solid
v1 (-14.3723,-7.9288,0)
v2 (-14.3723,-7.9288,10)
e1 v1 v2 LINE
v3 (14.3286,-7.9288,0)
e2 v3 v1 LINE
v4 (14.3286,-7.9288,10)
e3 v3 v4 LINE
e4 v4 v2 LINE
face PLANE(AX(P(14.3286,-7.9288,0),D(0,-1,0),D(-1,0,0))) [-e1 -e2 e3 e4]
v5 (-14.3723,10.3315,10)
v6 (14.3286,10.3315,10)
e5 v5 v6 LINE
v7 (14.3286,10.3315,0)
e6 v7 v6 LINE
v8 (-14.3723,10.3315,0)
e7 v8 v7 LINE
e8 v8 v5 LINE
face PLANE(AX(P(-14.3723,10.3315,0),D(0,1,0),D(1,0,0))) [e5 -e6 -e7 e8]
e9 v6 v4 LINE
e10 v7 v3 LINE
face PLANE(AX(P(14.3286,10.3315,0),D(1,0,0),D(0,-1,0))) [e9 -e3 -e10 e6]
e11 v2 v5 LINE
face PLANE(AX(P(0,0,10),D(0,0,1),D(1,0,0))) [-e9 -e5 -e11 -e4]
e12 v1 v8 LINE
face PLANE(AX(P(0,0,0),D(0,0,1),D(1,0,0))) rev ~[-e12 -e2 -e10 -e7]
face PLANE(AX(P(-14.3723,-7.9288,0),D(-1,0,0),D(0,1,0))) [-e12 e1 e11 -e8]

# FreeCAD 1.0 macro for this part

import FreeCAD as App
import Part
import Sketcher


def add_polygon(sketch, points):
    """Adds a closed chain of lines whose ends are joined by coincident constraints."""
    first, n = sketch.GeometryCount, len(points)
    for a, b in zip(points, points[1:] + points[:1]):
        sketch.addGeometry(Part.LineSegment(App.Vector(*a, 0), App.Vector(*b, 0)), False)
    for i in range(n):
        sketch.addConstraint(Sketcher.Constraint("Coincident", first + i, 2, first + (i + 1) % n, 1))

doc = App.newDocument("Part")
body = doc.addObject("PartDesign::Body", "Body")

# Sketch on XY plane
sketch1 = doc.addObject("Sketcher::SketchObject", "Sketch")
body.addObject(sketch1)
sketch1.AttachmentSupport = (doc.XY_Plane, [""])
sketch1.MapMode = "FlatFace"
add_polygon(sketch1, [(14.3286, 10.3315), (-14.3723, 10.3315), (-14.3723, -7.9288), (14.3286, -7.9288)])  # lines 0-3
sketch1.addConstraint(Sketcher.Constraint("Horizontal", 0))
sketch1.addConstraint(Sketcher.Constraint("Vertical", 1))
sketch1.addConstraint(Sketcher.Constraint("Horizontal", 2))
sketch1.addConstraint(Sketcher.Constraint("Vertical", 3))
sketch1.addConstraint(Sketcher.Constraint("DistanceX", 0, 2, 0, 1, 28.701))
sketch1.addConstraint(Sketcher.Constraint("DistanceY", 1, 2, 1, 1, 18.2603))
sketch1.addConstraint(Sketcher.Constraint("DistanceX", 0, 2, -1, 1, 14.3723))
sketch1.addConstraint(Sketcher.Constraint("DistanceY", -1, 1, 0, 2, 10.3315))
pad1 = doc.addObject("PartDesign::Pad", "Pad")
body.addObject(pad1)
pad1.Profile = sketch1
pad1.Length = 10

doc.recompute()
